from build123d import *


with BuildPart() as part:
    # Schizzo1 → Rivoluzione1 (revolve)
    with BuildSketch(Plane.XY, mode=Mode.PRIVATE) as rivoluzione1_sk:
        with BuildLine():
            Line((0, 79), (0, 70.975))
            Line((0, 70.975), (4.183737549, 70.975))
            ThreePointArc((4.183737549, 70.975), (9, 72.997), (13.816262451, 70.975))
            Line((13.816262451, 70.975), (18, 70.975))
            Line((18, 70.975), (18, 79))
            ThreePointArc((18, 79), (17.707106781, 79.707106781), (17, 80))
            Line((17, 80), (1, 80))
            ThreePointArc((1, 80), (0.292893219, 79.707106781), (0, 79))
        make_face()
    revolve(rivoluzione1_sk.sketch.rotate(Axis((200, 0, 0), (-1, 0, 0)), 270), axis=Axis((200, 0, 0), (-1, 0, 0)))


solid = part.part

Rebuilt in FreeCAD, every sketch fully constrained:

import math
import FreeCAD as App
import Part
import Sketcher

V = App.Vector

doc = App.newDocument("Part")
body = doc.addObject("PartDesign::Body", "Body")

sketch1 = body.newObject("Sketcher::SketchObject", "Sketch")
sketch1.AttachmentSupport = (doc.getObject("XY_Plane"), [""])
sketch1.MapMode = "FlatFace"
sketch1.addGeometry([
    Part.LineSegment(V(0, 79, 0), V(0, 70.975, 0)),
    Part.LineSegment(V(0, 70.975, 0), V(4.183738, 70.975, 0)),
    Part.ArcOfCircle(Part.Circle(V(9, 66.25, 0), V(0, 0, 1), 6.747), math.radians(44.451981), math.radians(135.548019)),
    Part.LineSegment(V(13.816262, 70.975, 0), V(18, 70.975, 0)),
    Part.LineSegment(V(18, 70.975, 0), V(18, 79, 0)),
    Part.ArcOfCircle(Part.Circle(V(17, 79, 0), V(0, 0, 1), 1), math.radians(0), math.radians(90)),
    Part.LineSegment(V(17, 80, 0), V(1, 80, 0)),
    Part.ArcOfCircle(Part.Circle(V(1, 79, 0), V(0, 0, 1), 1), math.radians(90), math.radians(180)),
], False)
sketch1.addConstraint([
    Sketcher.Constraint("Coincident", 0, 2, 1, 1),
    Sketcher.Constraint("Coincident", 1, 2, 2, 2),
    Sketcher.Constraint("Coincident", 2, 1, 3, 1),
    Sketcher.Constraint("Coincident", 3, 2, 4, 1),
    Sketcher.Constraint("Tangent", 4, 2, 5, 1),
    Sketcher.Constraint("Tangent", 5, 2, 6, 1),
    Sketcher.Constraint("Tangent", 6, 2, 7, 1),
    Sketcher.Constraint("Tangent", 7, 2, 0, 1),
    Sketcher.Constraint("Vertical", 0),
    Sketcher.Constraint("Horizontal", 1),
    Sketcher.Constraint("Horizontal", 3),
    Sketcher.Constraint("Vertical", 4),
    Sketcher.Constraint("Horizontal", 6),
    Sketcher.Constraint("Equal", 5, 7),
    Sketcher.Constraint("PointOnObject", 0, 2, -2),
    Sketcher.Constraint("Horizontal", 1, 2, 2, 1),
    Sketcher.Constraint("Equal", 1, 3),
    Sketcher.Constraint("Radius", 5, 1.0),
    Sketcher.Constraint("DistanceX", 6, 2, 6, 1, 16.0),
    Sketcher.Constraint("DistanceY", -1, 1, 5, 3, 79.0),
    Sketcher.Constraint("Radius", 2, 6.747),
    Sketcher.Constraint("DistanceY", 0, 2, 0, 1, 8.025),
    Sketcher.Constraint("DistanceY", -1, 1, 2, 3, 66.25),
])
revolution = body.newObject("PartDesign::Revolution", "Revolution")
revolution.Profile = sketch1
revolution.ReferenceAxis = (sketch1, ["H_Axis"])
revolution.Angle = 360

doc.recompute()
